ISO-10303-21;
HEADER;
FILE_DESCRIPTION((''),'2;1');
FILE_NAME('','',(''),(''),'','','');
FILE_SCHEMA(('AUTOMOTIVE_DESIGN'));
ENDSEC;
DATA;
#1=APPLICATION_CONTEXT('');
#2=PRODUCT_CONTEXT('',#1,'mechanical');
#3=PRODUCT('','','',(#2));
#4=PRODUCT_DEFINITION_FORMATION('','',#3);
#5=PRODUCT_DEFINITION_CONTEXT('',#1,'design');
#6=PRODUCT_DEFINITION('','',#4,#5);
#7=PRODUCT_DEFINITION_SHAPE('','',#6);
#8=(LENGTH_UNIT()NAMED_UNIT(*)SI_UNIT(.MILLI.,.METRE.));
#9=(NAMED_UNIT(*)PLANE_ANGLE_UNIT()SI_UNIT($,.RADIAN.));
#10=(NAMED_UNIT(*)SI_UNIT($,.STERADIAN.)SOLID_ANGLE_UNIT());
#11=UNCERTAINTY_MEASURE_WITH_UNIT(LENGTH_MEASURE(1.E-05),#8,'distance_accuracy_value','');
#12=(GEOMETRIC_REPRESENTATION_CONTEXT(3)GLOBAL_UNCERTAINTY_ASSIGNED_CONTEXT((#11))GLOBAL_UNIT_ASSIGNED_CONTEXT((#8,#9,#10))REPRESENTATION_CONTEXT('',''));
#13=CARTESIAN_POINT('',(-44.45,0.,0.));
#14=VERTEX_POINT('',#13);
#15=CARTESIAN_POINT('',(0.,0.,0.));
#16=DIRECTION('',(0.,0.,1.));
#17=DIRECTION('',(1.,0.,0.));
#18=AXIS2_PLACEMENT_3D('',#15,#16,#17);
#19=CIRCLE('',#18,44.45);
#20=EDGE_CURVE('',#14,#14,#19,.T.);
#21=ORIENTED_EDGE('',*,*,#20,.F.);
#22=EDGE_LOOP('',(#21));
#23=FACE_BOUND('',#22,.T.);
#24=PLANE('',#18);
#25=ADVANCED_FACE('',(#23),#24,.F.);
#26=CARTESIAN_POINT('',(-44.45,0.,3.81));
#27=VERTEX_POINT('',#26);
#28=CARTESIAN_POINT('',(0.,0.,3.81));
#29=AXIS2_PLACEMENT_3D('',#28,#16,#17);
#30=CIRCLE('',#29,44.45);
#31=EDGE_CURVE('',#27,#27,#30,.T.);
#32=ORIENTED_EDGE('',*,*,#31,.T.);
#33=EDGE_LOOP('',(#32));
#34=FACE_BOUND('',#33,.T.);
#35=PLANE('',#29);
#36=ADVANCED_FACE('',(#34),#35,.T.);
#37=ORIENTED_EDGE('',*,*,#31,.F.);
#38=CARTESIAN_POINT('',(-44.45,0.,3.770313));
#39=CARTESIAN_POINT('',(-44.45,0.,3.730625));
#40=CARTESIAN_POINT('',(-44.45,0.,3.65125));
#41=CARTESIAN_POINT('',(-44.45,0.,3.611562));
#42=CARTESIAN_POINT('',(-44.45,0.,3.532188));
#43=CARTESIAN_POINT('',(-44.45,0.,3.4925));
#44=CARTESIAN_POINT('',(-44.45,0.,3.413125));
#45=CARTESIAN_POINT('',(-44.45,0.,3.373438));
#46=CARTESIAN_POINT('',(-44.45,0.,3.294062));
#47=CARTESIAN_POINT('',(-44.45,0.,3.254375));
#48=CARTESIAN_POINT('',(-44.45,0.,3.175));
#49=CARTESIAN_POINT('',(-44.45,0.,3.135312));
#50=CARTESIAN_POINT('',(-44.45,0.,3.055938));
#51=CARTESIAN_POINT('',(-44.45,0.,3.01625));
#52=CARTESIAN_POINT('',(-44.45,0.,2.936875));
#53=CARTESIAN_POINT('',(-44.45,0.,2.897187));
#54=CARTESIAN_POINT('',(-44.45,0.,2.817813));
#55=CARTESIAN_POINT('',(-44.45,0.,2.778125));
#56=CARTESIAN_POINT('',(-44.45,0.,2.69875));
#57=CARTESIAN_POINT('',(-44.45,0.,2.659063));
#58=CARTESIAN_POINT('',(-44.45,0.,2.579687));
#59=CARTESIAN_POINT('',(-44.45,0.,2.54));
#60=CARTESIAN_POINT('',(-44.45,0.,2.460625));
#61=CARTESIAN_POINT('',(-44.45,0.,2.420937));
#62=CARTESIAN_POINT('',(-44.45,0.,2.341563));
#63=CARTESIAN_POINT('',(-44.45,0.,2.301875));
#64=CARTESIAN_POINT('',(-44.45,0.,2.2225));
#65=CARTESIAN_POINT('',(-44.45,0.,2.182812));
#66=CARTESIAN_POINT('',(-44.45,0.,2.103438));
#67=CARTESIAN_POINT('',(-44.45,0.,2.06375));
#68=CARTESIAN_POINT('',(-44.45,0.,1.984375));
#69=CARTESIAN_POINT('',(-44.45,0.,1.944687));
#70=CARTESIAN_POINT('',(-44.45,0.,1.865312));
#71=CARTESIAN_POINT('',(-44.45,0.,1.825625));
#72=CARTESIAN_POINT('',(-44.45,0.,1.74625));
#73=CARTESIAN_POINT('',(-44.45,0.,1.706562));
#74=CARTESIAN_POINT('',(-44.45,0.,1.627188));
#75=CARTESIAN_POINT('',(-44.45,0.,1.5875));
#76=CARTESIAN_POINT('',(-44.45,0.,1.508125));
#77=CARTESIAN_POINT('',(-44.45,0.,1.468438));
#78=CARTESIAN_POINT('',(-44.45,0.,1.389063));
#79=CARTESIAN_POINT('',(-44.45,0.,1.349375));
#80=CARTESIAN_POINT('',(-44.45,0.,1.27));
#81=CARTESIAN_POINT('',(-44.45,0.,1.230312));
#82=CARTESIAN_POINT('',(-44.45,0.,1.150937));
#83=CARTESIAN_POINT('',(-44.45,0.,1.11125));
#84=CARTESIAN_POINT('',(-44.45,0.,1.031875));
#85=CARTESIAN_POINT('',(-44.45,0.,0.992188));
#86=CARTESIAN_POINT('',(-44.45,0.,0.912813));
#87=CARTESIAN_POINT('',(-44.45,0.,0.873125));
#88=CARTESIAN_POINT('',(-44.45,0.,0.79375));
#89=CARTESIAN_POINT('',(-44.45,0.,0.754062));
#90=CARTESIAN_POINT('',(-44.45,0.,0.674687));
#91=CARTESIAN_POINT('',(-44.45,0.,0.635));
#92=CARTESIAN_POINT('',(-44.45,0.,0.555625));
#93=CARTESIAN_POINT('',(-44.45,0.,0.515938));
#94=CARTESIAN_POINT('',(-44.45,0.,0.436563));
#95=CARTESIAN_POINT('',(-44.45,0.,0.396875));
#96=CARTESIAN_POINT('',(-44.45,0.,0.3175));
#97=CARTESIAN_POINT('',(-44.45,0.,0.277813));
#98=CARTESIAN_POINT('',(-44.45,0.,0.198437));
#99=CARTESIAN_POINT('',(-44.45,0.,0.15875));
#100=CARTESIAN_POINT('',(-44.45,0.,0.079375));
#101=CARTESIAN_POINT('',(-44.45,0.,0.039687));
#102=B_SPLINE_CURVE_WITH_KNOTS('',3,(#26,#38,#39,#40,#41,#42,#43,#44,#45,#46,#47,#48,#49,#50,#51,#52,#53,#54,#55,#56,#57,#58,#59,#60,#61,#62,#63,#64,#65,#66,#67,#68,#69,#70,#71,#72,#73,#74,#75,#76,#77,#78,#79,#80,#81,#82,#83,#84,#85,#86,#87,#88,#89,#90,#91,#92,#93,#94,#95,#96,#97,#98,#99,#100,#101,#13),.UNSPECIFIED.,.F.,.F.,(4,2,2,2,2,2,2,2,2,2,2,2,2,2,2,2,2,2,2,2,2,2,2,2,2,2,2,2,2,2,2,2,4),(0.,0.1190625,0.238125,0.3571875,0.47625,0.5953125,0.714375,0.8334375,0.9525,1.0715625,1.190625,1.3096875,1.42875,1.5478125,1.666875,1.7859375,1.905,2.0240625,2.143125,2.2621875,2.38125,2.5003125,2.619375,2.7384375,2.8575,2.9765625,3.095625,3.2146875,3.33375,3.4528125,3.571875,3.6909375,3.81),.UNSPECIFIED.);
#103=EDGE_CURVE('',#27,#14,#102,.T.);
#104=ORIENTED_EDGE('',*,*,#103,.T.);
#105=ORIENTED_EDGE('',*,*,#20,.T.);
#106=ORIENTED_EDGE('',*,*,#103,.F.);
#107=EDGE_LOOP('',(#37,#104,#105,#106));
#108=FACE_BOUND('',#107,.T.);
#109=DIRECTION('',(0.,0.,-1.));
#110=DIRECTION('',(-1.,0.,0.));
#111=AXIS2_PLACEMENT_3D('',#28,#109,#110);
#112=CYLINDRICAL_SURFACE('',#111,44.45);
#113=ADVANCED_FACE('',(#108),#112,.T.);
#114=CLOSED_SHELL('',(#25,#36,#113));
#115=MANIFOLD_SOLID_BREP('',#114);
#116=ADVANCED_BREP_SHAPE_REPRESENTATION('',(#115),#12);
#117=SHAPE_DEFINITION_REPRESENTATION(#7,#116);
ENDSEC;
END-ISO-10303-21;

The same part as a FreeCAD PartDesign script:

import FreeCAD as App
import Part
import Sketcher
Q = App.Units.Quantity

doc = App.newDocument("Part")
params = doc.addObject("Spreadsheet::Sheet", "Params")
for row, (alias, value) in enumerate([
    ("sketch1_diameter", "3.5 in"),
    ("pad1_length", "0.15 in"),
], start=1):
    params.set(f"A{row}", alias)
    params.set(f"B{row}", "=" + value)
    params.setAlias(f"B{row}", alias)

body = doc.addObject("PartDesign::Body", "Body")

sketch1 = body.newObject("Sketcher::SketchObject", "Sketch")
sketch1.AttachmentSupport = (doc.getObject("XY_Plane"), [""])
sketch1.MapMode = "FlatFace"
sketch1.addGeometry(Part.Circle(App.Vector(0, 0, 0), App.Vector(0, 0, 1), 44.45), False)
sketch1.addConstraint(Sketcher.Constraint("Coincident", 0, 3, -1, 1))
sketch1.addConstraint(Sketcher.Constraint("Diameter", 0, Q("3.5 in")))
sketch1.setExpression("Constraints[1]", "Params.sketch1_diameter")
pad1 = body.newObject("PartDesign::Pad", "Pad")
pad1.Profile = sketch1
pad1.setExpression("Length", "Params.pad1_length")

doc.recompute()
